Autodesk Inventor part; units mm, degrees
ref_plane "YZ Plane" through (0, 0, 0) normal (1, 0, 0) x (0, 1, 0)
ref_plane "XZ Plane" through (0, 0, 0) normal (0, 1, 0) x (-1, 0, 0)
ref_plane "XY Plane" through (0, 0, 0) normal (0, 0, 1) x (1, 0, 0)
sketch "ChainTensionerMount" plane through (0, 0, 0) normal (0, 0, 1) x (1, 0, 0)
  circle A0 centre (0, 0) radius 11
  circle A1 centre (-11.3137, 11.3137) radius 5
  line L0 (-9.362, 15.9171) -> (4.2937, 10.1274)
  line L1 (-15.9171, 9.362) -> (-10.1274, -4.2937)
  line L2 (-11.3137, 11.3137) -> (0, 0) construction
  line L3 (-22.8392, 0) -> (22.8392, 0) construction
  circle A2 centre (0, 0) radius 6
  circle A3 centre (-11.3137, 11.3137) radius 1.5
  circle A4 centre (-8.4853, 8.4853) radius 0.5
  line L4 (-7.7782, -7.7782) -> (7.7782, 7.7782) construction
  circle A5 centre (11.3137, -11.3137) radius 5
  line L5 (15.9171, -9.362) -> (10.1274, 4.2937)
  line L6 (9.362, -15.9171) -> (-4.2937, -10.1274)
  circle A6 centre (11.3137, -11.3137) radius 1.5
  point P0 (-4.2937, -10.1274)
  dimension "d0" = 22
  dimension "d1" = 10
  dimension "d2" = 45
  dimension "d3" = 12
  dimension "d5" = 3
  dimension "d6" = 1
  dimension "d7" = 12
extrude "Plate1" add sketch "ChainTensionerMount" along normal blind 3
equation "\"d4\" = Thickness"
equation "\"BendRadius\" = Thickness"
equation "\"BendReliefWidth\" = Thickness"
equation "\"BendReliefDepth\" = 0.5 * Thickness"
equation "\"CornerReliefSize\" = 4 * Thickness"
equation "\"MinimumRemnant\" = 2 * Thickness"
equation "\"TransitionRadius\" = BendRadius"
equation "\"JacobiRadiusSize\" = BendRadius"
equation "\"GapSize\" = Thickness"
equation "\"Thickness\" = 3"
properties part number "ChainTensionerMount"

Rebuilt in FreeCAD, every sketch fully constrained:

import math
import FreeCAD as App
import Part
import Sketcher

V = App.Vector
Q = App.Units.Quantity

doc = App.newDocument("Part")
body = doc.addObject("PartDesign::Body", "Body")

# Sketch on XY plane
sketch1 = doc.addObject("Sketcher::SketchObject", "Sketch")
body.addObject(sketch1)
sketch1.AttachmentSupport = (doc.XY_Plane, [""])
sketch1.MapMode = "FlatFace"
sketch1.addGeometry(Part.ArcOfCircle(Part.Circle(V(0, 0, 0), V(0, 0, 1), 11), math.radians(-157.024579), math.radians(-112.975421)), False)
sketch1.addGeometry(Part.LineSegment(V(-4.2937, -10.1274, 0), V(9.362, -15.9171, 0)), False)
sketch1.addGeometry(Part.ArcOfCircle(Part.Circle(V(11.3137, -11.3137, 0), V(0, 0, 1), 5), math.radians(-112.975451), math.radians(22.975451)), False)
sketch1.addGeometry(Part.LineSegment(V(15.9171, -9.362, 0), V(10.1274, 4.2937, 0)), False)
sketch1.addGeometry(Part.ArcOfCircle(Part.Circle(V(0, 0, 0), V(0, 0, 1), 11), math.radians(22.975421), math.radians(67.024579)), False)
sketch1.addGeometry(Part.LineSegment(V(4.2937, 10.1274, 0), V(-9.362, 15.9171, 0)), False)
sketch1.addGeometry(Part.ArcOfCircle(Part.Circle(V(-11.3137, 11.3137, 0), V(0, 0, 1), 5), math.radians(67.024549), math.radians(202.975451)), False)
sketch1.addGeometry(Part.LineSegment(V(-15.9171, 9.362, 0), V(-10.1274, -4.2937, 0)), False)
sketch1.addGeometry(Part.Circle(V(0, 0, 0), V(0, 0, 1), 6), False)
sketch1.addGeometry(Part.Circle(V(11.3137, -11.3137, 0), V(0, 0, 1), 1.5), False)
sketch1.addGeometry(Part.Circle(V(-11.3137, 11.3137, 0), V(0, 0, 1), 1.5), False)
sketch1.addGeometry(Part.Circle(V(-8.4853, 8.4853, 0), V(0, 0, 1), 0.5), False)
sketch1.addConstraint(Sketcher.Constraint("Tangent", 0, 2, 1, 1))
sketch1.addConstraint(Sketcher.Constraint("Tangent", 1, 2, 2, 1))
sketch1.addConstraint(Sketcher.Constraint("Tangent", 2, 2, 3, 1))
sketch1.addConstraint(Sketcher.Constraint("Tangent", 3, 2, 4, 1))
sketch1.addConstraint(Sketcher.Constraint("Tangent", 4, 2, 5, 1))
sketch1.addConstraint(Sketcher.Constraint("Tangent", 5, 2, 6, 1))
sketch1.addConstraint(Sketcher.Constraint("Tangent", 6, 2, 7, 1))
sketch1.addConstraint(Sketcher.Constraint("Tangent", 7, 2, 0, 1))
sketch1.addConstraint(Sketcher.Constraint("Coincident", 0, 3, -1, 1))
sketch1.addConstraint(Sketcher.Constraint("Coincident", 4, 3, -1, 1))
sketch1.addConstraint(Sketcher.Constraint("Coincident", 8, 3, -1, 1))
sketch1.addConstraint(Sketcher.Constraint("Coincident", 9, 3, 2, 3))
sketch1.addConstraint(Sketcher.Constraint("Coincident", 10, 3, 6, 3))
sketch1.addConstraint(Sketcher.Constraint("Equal", 0, 4))
sketch1.addConstraint(Sketcher.Constraint("Equal", 2, 6))
sketch1.addConstraint(Sketcher.Constraint("Equal", 9, 10))
sketch1.addConstraint(Sketcher.Constraint("Symmetric", 2, 3, 6, 3, -1, 1))
sketch1.addConstraint(Sketcher.Constraint("Diameter", 8, Q("12 mm")))
sketch1.addConstraint(Sketcher.Constraint("Diameter", 9, Q("3 mm")))
sketch1.addConstraint(Sketcher.Constraint("Diameter", 11, Q("1 mm")))
sketch1.addConstraint(Sketcher.Constraint("Radius", 0, Q("11 mm")))
sketch1.addConstraint(Sketcher.Constraint("Radius", 2, Q("5 mm")))
sketch1.addConstraint(Sketcher.Constraint("DistanceX", -1, 1, 1, 2, Q("9.362 mm")))
sketch1.addConstraint(Sketcher.Constraint("DistanceY", 1, 2, -1, 1, Q("15.917 mm")))
sketch1.addConstraint(Sketcher.Constraint("DistanceX", 11, 3, 4, 2, Q("12.779 mm")))
sketch1.addConstraint(Sketcher.Constraint("DistanceY", 11, 3, 4, 2, Q("1.642 mm")))
pad1 = doc.addObject("PartDesign::Pad", "Pad")
body.addObject(pad1)
pad1.Profile = sketch1
pad1.Length = 3

doc.recompute()
